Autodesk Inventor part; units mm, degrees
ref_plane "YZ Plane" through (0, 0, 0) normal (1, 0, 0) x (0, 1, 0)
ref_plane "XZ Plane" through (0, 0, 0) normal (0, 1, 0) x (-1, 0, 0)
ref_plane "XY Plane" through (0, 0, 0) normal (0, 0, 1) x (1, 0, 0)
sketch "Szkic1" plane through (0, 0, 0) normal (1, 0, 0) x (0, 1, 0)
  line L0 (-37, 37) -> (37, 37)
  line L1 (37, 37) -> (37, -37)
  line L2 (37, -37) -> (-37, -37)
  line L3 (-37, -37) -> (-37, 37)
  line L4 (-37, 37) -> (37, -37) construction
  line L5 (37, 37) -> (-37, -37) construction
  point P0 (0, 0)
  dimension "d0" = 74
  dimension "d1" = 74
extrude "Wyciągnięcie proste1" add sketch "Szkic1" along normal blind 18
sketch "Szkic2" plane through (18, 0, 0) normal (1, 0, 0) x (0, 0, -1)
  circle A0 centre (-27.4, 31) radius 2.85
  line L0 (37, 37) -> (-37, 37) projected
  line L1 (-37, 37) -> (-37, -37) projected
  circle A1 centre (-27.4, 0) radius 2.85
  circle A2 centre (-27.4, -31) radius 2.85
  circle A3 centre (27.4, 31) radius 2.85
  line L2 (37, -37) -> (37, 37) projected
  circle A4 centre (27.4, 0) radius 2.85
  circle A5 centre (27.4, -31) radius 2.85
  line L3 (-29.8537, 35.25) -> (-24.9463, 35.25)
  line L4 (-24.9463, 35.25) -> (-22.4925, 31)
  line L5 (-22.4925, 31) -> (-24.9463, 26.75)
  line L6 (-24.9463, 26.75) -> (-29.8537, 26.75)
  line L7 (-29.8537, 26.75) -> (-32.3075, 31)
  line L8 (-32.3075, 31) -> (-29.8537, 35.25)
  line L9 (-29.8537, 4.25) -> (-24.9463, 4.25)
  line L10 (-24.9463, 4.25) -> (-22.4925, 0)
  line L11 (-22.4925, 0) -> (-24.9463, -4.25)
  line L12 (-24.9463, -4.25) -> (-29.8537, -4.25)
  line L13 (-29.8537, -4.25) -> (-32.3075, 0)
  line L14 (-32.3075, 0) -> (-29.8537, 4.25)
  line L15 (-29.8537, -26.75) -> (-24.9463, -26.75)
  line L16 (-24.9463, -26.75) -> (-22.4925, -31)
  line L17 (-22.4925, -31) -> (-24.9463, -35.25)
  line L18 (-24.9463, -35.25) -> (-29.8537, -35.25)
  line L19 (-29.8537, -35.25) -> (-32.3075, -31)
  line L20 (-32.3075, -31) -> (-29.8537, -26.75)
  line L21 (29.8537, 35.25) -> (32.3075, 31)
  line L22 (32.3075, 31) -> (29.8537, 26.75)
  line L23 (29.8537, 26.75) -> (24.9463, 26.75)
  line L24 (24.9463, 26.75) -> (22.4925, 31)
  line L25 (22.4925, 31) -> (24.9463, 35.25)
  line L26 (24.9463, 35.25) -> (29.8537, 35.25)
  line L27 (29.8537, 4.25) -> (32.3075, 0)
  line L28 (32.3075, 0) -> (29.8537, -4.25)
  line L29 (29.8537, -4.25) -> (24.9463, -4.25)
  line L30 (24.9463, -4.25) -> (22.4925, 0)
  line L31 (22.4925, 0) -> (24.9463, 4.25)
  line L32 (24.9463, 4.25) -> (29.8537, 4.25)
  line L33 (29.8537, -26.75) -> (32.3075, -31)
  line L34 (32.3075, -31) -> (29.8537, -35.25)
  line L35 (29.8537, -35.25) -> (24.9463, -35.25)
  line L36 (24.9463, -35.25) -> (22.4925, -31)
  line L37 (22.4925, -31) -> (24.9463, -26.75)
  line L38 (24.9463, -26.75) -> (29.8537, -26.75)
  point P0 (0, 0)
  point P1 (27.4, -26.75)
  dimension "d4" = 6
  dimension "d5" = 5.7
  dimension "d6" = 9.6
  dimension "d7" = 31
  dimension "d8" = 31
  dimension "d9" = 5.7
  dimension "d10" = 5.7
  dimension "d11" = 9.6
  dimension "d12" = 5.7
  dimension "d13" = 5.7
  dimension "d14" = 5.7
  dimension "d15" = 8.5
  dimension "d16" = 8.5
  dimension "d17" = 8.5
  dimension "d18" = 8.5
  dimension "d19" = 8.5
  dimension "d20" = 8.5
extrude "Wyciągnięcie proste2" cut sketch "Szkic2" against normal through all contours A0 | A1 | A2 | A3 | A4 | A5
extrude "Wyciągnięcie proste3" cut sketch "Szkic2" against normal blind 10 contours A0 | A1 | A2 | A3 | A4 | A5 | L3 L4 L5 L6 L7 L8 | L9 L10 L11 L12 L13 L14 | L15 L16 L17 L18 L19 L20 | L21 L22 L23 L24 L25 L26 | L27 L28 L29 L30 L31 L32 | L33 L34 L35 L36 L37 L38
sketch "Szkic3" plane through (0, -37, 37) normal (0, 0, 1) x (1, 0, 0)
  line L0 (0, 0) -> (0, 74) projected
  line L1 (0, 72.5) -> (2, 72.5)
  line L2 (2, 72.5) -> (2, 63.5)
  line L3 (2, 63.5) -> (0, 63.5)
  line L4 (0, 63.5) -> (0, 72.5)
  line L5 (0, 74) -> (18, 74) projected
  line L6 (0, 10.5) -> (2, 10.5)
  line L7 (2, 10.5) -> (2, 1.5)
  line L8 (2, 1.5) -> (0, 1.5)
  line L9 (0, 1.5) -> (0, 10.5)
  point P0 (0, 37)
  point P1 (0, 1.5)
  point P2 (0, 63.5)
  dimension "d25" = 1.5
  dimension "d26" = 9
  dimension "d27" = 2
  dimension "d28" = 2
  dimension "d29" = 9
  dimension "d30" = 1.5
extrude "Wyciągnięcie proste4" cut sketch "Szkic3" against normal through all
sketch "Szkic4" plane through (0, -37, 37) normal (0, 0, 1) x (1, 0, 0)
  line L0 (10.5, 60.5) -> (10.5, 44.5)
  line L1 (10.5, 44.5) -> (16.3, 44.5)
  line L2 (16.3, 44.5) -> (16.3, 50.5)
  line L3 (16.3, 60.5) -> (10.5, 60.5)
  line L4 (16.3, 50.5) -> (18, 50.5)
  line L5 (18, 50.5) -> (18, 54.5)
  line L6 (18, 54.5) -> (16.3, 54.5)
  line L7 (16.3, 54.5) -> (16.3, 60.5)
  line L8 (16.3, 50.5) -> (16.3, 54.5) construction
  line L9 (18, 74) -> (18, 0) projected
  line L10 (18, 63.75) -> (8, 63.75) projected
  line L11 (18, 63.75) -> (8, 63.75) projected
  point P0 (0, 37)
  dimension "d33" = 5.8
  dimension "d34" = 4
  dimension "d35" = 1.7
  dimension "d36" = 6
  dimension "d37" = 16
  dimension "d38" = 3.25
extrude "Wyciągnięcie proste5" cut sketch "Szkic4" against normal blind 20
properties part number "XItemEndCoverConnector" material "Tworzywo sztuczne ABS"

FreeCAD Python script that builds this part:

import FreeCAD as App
import Part
import Sketcher
from FreeCAD import Vector
Q = App.Units.Quantity

doc = App.newDocument("Part")
body = doc.addObject("PartDesign::Body", "Body")

sketch1 = body.newObject("Sketcher::SketchObject", "Sketch")
sketch1.AttachmentSupport = (doc.getObject("YZ_Plane"), [""])
sketch1.MapMode = "FlatFace"
sketch1.addGeometry([
    Part.LineSegment(Vector(37, 37, 0), Vector(-37, 37, 0)),
    Part.LineSegment(Vector(-37, 37, 0), Vector(-37, -37, 0)),
    Part.LineSegment(Vector(-37, -37, 0), Vector(37, -37, 0)),
    Part.LineSegment(Vector(37, -37, 0), Vector(37, 37, 0)),
], False)
sketch1.addConstraint([
    Sketcher.Constraint("Coincident", 0, 2, 1, 1),
    Sketcher.Constraint("Coincident", 1, 2, 2, 1),
    Sketcher.Constraint("Coincident", 2, 2, 3, 1),
    Sketcher.Constraint("Coincident", 3, 2, 0, 1),
    Sketcher.Constraint("Horizontal", 0),
    Sketcher.Constraint("Vertical", 1),
    Sketcher.Constraint("Horizontal", 2),
    Sketcher.Constraint("Vertical", 3),
    Sketcher.Constraint("Symmetric", 0, 2, 2, 2, -1, 1),
    Sketcher.Constraint("Equal", 2, 1),
    Sketcher.Constraint("DistanceX", 0, 2, 0, 1, 74.0),
])
pad1 = body.newObject("PartDesign::Pad", "Pad")
pad1.Profile = sketch1
pad1.Length = 18

sketch2 = body.newObject("Sketcher::SketchObject", "Sketch001")
sketch2.AttachmentSupport = (doc.getObject("YZ_Plane"), [""])
sketch2.MapMode = "FlatFace"
sketch2.AttachmentOffset = App.Placement(Vector(0, 0, 18), App.Rotation())
sketch2.addGeometry([
    Part.Circle(Vector(31, 27.4, 0), Vector(0, 0, 1), 2.85),
    Part.Circle(Vector(0, 27.4, 0), Vector(0, 0, 1), 2.85),
    Part.Circle(Vector(-31, 27.4, 0), Vector(0, 0, 1), 2.85),
    Part.Circle(Vector(31, -27.4, 0), Vector(0, 0, 1), 2.85),
    Part.Circle(Vector(0, -27.4, 0), Vector(0, 0, 1), 2.85),
    Part.Circle(Vector(-31, -27.4, 0), Vector(0, 0, 1), 2.85),
], False)
sketch2.addConstraint([
    Sketcher.Constraint("Equal", 0, 1),
    Sketcher.Constraint("Equal", 1, 2),
    Sketcher.Constraint("Equal", 2, 3),
    Sketcher.Constraint("Equal", 3, 4),
    Sketcher.Constraint("Equal", 4, 5),
    Sketcher.Constraint("Symmetric", 2, 3, 3, 3, -1, 1),
    Sketcher.Constraint("Symmetric", 1, 3, 4, 3, -1, 1),
    Sketcher.Constraint("Symmetric", 0, 3, 5, 3, -1, 1),
    Sketcher.Constraint("Symmetric", 0, 3, 2, 3, -2),
    Sketcher.Constraint("PointOnObject", 1, 3, -2),
    Sketcher.Constraint("Horizontal", 0, 3, 1, 3),
    Sketcher.Constraint("Diameter", 0, 5.7),
    Sketcher.Constraint("DistanceX", -1, 1, 0, 3, 31.0),
    Sketcher.Constraint("DistanceY", -1, 1, 0, 3, 27.4),
])
pocket1 = body.newObject("PartDesign::Pocket", "Pocket")
pocket1.Profile = sketch2
pocket1.Type = "ThroughAll"

sketch3 = body.newObject("Sketcher::SketchObject", "Sketch002")
sketch3.AttachmentSupport = (doc.getObject("YZ_Plane"), [""])
sketch3.MapMode = "FlatFace"
sketch3.AttachmentOffset = App.Placement(Vector(0, 0, 18), App.Rotation())
sketch3.addGeometry([
    Part.LineSegment(Vector(35.25, 24.9463, 0), Vector(35.25, 29.8537, 0)),
    Part.LineSegment(Vector(35.25, 29.8537, 0), Vector(31, 32.3075, 0)),
    Part.LineSegment(Vector(31, 32.3075, 0), Vector(26.75, 29.8537, 0)),
    Part.LineSegment(Vector(26.75, 29.8537, 0), Vector(26.75, 24.9463, 0)),
    Part.LineSegment(Vector(26.75, 24.9463, 0), Vector(31, 22.4925, 0)),
    Part.LineSegment(Vector(31, 22.4925, 0), Vector(35.25, 24.9463, 0)),
    Part.LineSegment(Vector(4.25, 24.9463, 0), Vector(4.25, 29.8537, 0)),
    Part.LineSegment(Vector(4.25, 29.8537, 0), Vector(0, 32.3075, 0)),
    Part.LineSegment(Vector(0, 32.3075, 0), Vector(-4.25, 29.8537, 0)),
    Part.LineSegment(Vector(-4.25, 29.8537, 0), Vector(-4.25, 24.9463, 0)),
    Part.LineSegment(Vector(-4.25, 24.9463, 0), Vector(0, 22.4925, 0)),
    Part.LineSegment(Vector(0, 22.4925, 0), Vector(4.25, 24.9463, 0)),
    Part.LineSegment(Vector(-26.75, 24.9463, 0), Vector(-26.75, 29.8537, 0)),
    Part.LineSegment(Vector(-26.75, 29.8537, 0), Vector(-31, 32.3075, 0)),
    Part.LineSegment(Vector(-31, 32.3075, 0), Vector(-35.25, 29.8537, 0)),
    Part.LineSegment(Vector(-35.25, 29.8537, 0), Vector(-35.25, 24.9463, 0)),
    Part.LineSegment(Vector(-35.25, 24.9463, 0), Vector(-31, 22.4925, 0)),
    Part.LineSegment(Vector(-31, 22.4925, 0), Vector(-26.75, 24.9463, 0)),
    Part.LineSegment(Vector(31, -32.3075, 0), Vector(35.25, -29.8537, 0)),
    Part.LineSegment(Vector(35.25, -29.8537, 0), Vector(35.25, -24.9463, 0)),
    Part.LineSegment(Vector(35.25, -24.9463, 0), Vector(31, -22.4925, 0)),
    Part.LineSegment(Vector(31, -22.4925, 0), Vector(26.75, -24.9463, 0)),
    Part.LineSegment(Vector(26.75, -24.9463, 0), Vector(26.75, -29.8537, 0)),
    Part.LineSegment(Vector(26.75, -29.8537, 0), Vector(31, -32.3075, 0)),
    Part.LineSegment(Vector(0, -32.3075, 0), Vector(4.25, -29.8537, 0)),
    Part.LineSegment(Vector(4.25, -29.8537, 0), Vector(4.25, -24.9463, 0)),
    Part.LineSegment(Vector(4.25, -24.9463, 0), Vector(0, -22.4925, 0)),
    Part.LineSegment(Vector(0, -22.4925, 0), Vector(-4.25, -24.9463, 0)),
    Part.LineSegment(Vector(-4.25, -24.9463, 0), Vector(-4.25, -29.8537, 0)),
    Part.LineSegment(Vector(-4.25, -29.8537, 0), Vector(0, -32.3075, 0)),
    Part.LineSegment(Vector(-31, -32.3075, 0), Vector(-26.75, -29.8537, 0)),
    Part.LineSegment(Vector(-26.75, -29.8537, 0), Vector(-26.75, -24.9463, 0)),
    Part.LineSegment(Vector(-26.75, -24.9463, 0), Vector(-31, -22.4925, 0)),
    Part.LineSegment(Vector(-31, -22.4925, 0), Vector(-35.25, -24.9463, 0)),
    Part.LineSegment(Vector(-35.25, -24.9463, 0), Vector(-35.25, -29.8537, 0)),
    Part.LineSegment(Vector(-35.25, -29.8537, 0), Vector(-31, -32.3075, 0)),
], False)
sketch3.addConstraint([
    Sketcher.Constraint("Coincident", 0, 2, 1, 1),
    Sketcher.Constraint("Coincident", 1, 2, 2, 1),
    Sketcher.Constraint("Coincident", 2, 2, 3, 1),
    Sketcher.Constraint("Coincident", 3, 2, 4, 1),
    Sketcher.Constraint("Coincident", 4, 2, 5, 1),
    Sketcher.Constraint("Coincident", 5, 2, 0, 1),
    Sketcher.Constraint("Coincident", 6, 2, 7, 1),
    Sketcher.Constraint("Coincident", 7, 2, 8, 1),
    Sketcher.Constraint("Coincident", 8, 2, 9, 1),
    Sketcher.Constraint("Coincident", 9, 2, 10, 1),
    Sketcher.Constraint("Coincident", 10, 2, 11, 1),
    Sketcher.Constraint("Coincident", 11, 2, 6, 1),
    Sketcher.Constraint("Coincident", 12, 2, 13, 1),
    Sketcher.Constraint("Coincident", 13, 2, 14, 1),
    Sketcher.Constraint("Coincident", 14, 2, 15, 1),
    Sketcher.Constraint("Coincident", 15, 2, 16, 1),
    Sketcher.Constraint("Coincident", 16, 2, 17, 1),
    Sketcher.Constraint("Coincident", 17, 2, 12, 1),
    Sketcher.Constraint("Coincident", 18, 2, 19, 1),
    Sketcher.Constraint("Coincident", 19, 2, 20, 1),
    Sketcher.Constraint("Coincident", 20, 2, 21, 1),
    Sketcher.Constraint("Coincident", 21, 2, 22, 1),
    Sketcher.Constraint("Coincident", 22, 2, 23, 1),
    Sketcher.Constraint("Coincident", 23, 2, 18, 1),
    Sketcher.Constraint("Coincident", 24, 2, 25, 1),
    Sketcher.Constraint("Coincident", 25, 2, 26, 1),
    Sketcher.Constraint("Coincident", 26, 2, 27, 1),
    Sketcher.Constraint("Coincident", 27, 2, 28, 1),
    Sketcher.Constraint("Coincident", 28, 2, 29, 1),
    Sketcher.Constraint("Coincident", 29, 2, 24, 1),
    Sketcher.Constraint("Coincident", 30, 2, 31, 1),
    Sketcher.Constraint("Coincident", 31, 2, 32, 1),
    Sketcher.Constraint("Coincident", 32, 2, 33, 1),
    Sketcher.Constraint("Coincident", 33, 2, 34, 1),
    Sketcher.Constraint("Coincident", 34, 2, 35, 1),
    Sketcher.Constraint("Coincident", 35, 2, 30, 1),
    Sketcher.Constraint("Vertical", 0),
    Sketcher.Constraint("Vertical", 3),
    Sketcher.Constraint("Vertical", 6),
    Sketcher.Constraint("Vertical", 9),
    Sketcher.Constraint("Vertical", 12),
    Sketcher.Constraint("Vertical", 15),
    Sketcher.Constraint("Vertical", 19),
    Sketcher.Constraint("Vertical", 22),
    Sketcher.Constraint("Vertical", 25),
    Sketcher.Constraint("Vertical", 28),
    Sketcher.Constraint("Vertical", 31),
    Sketcher.Constraint("Vertical", 34),
    Sketcher.Constraint("Symmetric", 14, 2, 18, 2, -1, 1),
    Sketcher.Constraint("Symmetric", 16, 2, 20, 2, -1, 1),
    Sketcher.Constraint("Symmetric", 17, 2, 21, 2, -1, 1),
    Sketcher.Constraint("Symmetric", 13, 2, 23, 2, -1, 1),
    Sketcher.Constraint("Symmetric", 8, 2, 24, 2, -1, 1),
    Sketcher.Constraint("Symmetric", 10, 2, 26, 2, -1, 1),
    Sketcher.Constraint("Symmetric", 11, 2, 27, 2, -1, 1),
    Sketcher.Constraint("Symmetric", 7, 2, 29, 2, -1, 1),
    Sketcher.Constraint("Symmetric", 2, 2, 30, 2, -1, 1),
    Sketcher.Constraint("Symmetric", 4, 2, 32, 2, -1, 1),
    Sketcher.Constraint("Symmetric", 5, 2, 33, 2, -1, 1),
    Sketcher.Constraint("Symmetric", 1, 2, 35, 2, -1, 1),
    Sketcher.Constraint("Symmetric", 6, 2, 8, 2, -2),
    Sketcher.Constraint("Symmetric", 2, 2, 12, 2, -2),
    Sketcher.Constraint("Symmetric", 1, 2, 13, 2, -2),
    Sketcher.Constraint("Symmetric", 0, 2, 14, 2, -2),
    Sketcher.Constraint("Symmetric", 4, 2, 16, 2, -2),
    Sketcher.Constraint("PointOnObject", 7, 2, -2),
    Sketcher.Constraint("PointOnObject", 10, 2, -2),
    Sketcher.Constraint("Parallel", 1, 4),
    Sketcher.Constraint("Parallel", 2, 5),
    Sketcher.Constraint("Parallel", 4, 7),
    Sketcher.Constraint("Parallel", 5, 8),
    Sketcher.Constraint("Parallel", 7, 10),
    Sketcher.Constraint("Parallel", 8, 11),
    Sketcher.Constraint("Parallel", 13, 16),
    Sketcher.Constraint("Parallel", 14, 17),
    Sketcher.Constraint("Parallel", 16, 20),
    Sketcher.Constraint("Parallel", 20, 23),
    Sketcher.Constraint("Parallel", 23, 26),
    Sketcher.Constraint("Parallel", 26, 29),
    Sketcher.Constraint("Parallel", 29, 32),
    Sketcher.Constraint("Parallel", 32, 35),
    Sketcher.Constraint("Horizontal", 0, 2, 2, 2),
    Sketcher.Constraint("Horizontal", 3, 2, 5, 2),
    Sketcher.Constraint("Horizontal", 2, 2, 6, 2),
    Sketcher.Constraint("Horizontal", 1, 2, 7, 2),
    Sketcher.Constraint("Horizontal", 5, 2, 9, 2),
    Sketcher.Constraint("DistanceX", -1, 1, 1, 2, 31.0),
    Sketcher.Constraint("DistanceX", 2, 2, 0, 2, 8.5),
    Sketcher.Constraint("Angle", 1, Q("149.9994 deg")),
    Sketcher.Constraint("DistanceY", 18, 2, 5, 2, 54.8),
    Sketcher.Constraint("DistanceY", 0, 1, 0, 2, 4.9074),
])
pocket2 = body.newObject("PartDesign::Pocket", "Pocket001")
pocket2.Profile = sketch3
pocket2.Length = 10

sketch4 = body.newObject("Sketcher::SketchObject", "Sketch003")
sketch4.AttachmentSupport = (doc.getObject("XY_Plane"), [""])
sketch4.MapMode = "FlatFace"
sketch4.AttachmentOffset = App.Placement(Vector(0, 0, 37), App.Rotation())
sketch4.addGeometry([
    Part.LineSegment(Vector(0, 35.5, 0), Vector(0, 26.5, 0)),
    Part.LineSegment(Vector(0, 26.5, 0), Vector(2, 26.5, 0)),
    Part.LineSegment(Vector(2, 26.5, 0), Vector(2, 35.5, 0)),
    Part.LineSegment(Vector(2, 35.5, 0), Vector(0, 35.5, 0)),
    Part.LineSegment(Vector(0, -26.5, 0), Vector(0, -35.5, 0)),
    Part.LineSegment(Vector(0, -35.5, 0), Vector(2, -35.5, 0)),
    Part.LineSegment(Vector(2, -35.5, 0), Vector(2, -26.5, 0)),
    Part.LineSegment(Vector(2, -26.5, 0), Vector(0, -26.5, 0)),
], False)
sketch4.addConstraint([
    Sketcher.Constraint("Coincident", 0, 2, 1, 1),
    Sketcher.Constraint("Coincident", 1, 2, 2, 1),
    Sketcher.Constraint("Coincident", 2, 2, 3, 1),
    Sketcher.Constraint("Coincident", 3, 2, 0, 1),
    Sketcher.Constraint("Coincident", 4, 2, 5, 1),
    Sketcher.Constraint("Coincident", 5, 2, 6, 1),
    Sketcher.Constraint("Coincident", 6, 2, 7, 1),
    Sketcher.Constraint("Coincident", 7, 2, 4, 1),
    Sketcher.Constraint("Vertical", 0),
    Sketcher.Constraint("Horizontal", 1),
    Sketcher.Constraint("Vertical", 2),
    Sketcher.Constraint("Horizontal", 3),
    Sketcher.Constraint("Vertical", 4),
    Sketcher.Constraint("Horizontal", 5),
    Sketcher.Constraint("Vertical", 6),
    Sketcher.Constraint("Horizontal", 7),
    Sketcher.Constraint("Symmetric", 3, 2, 4, 2, -1, 1),
    Sketcher.Constraint("Symmetric", 1, 2, 6, 2, -1),
    Sketcher.Constraint("PointOnObject", 0, 2, -2),
    Sketcher.Constraint("DistanceX", 1, 1, 1, 2, 2.0),
    Sketcher.Constraint("DistanceY", 0, 2, 0, 1, 9.0),
    Sketcher.Constraint("DistanceY", 4, 2, 0, 2, 62.0),
])
pocket3 = body.newObject("PartDesign::Pocket", "Pocket002")
pocket3.Profile = sketch4
pocket3.Type = "ThroughAll"

sketch5 = body.newObject("Sketcher::SketchObject", "Sketch004")
sketch5.AttachmentSupport = (doc.getObject("XY_Plane"), [""])
sketch5.MapMode = "FlatFace"
sketch5.AttachmentOffset = App.Placement(Vector(0, 0, 37), App.Rotation())
sketch5.addGeometry([
    Part.LineSegment(Vector(16.3, 23.5, 0), Vector(10.5, 23.5, 0)),
    Part.LineSegment(Vector(10.5, 23.5, 0), Vector(10.5, 7.5, 0)),
    Part.LineSegment(Vector(10.5, 7.5, 0), Vector(16.3, 7.5, 0)),
    Part.LineSegment(Vector(16.3, 7.5, 0), Vector(16.3, 13.5, 0)),
    Part.LineSegment(Vector(16.3, 13.5, 0), Vector(18, 13.5, 0)),
    Part.LineSegment(Vector(18, 13.5, 0), Vector(18, 17.5, 0)),
    Part.LineSegment(Vector(18, 17.5, 0), Vector(16.3, 17.5, 0)),
    Part.LineSegment(Vector(16.3, 17.5, 0), Vector(16.3, 23.5, 0)),
], False)
sketch5.addConstraint([
    Sketcher.Constraint("Coincident", 0, 2, 1, 1),
    Sketcher.Constraint("Coincident", 1, 2, 2, 1),
    Sketcher.Constraint("Coincident", 2, 2, 3, 1),
    Sketcher.Constraint("Coincident", 3, 2, 4, 1),
    Sketcher.Constraint("Coincident", 4, 2, 5, 1),
    Sketcher.Constraint("Coincident", 5, 2, 6, 1),
    Sketcher.Constraint("Coincident", 6, 2, 7, 1),
    Sketcher.Constraint("Coincident", 7, 2, 0, 1),
    Sketcher.Constraint("Horizontal", 0),
    Sketcher.Constraint("Vertical", 1),
    Sketcher.Constraint("Horizontal", 2),
    Sketcher.Constraint("Vertical", 3),
    Sketcher.Constraint("Horizontal", 4),
    Sketcher.Constraint("Vertical", 5),
    Sketcher.Constraint("Horizontal", 6),
    Sketcher.Constraint("Vertical", 7),
    Sketcher.Constraint("Vertical", 3, 2, 6, 2),
    Sketcher.Constraint("Equal", 3, 7),
    Sketcher.Constraint("DistanceY", 1, 2, 1, 1, 16.0),
    Sketcher.Constraint("DistanceY", 3, 1, 3, 2, 6.0),
    Sketcher.Constraint("DistanceX", 0, 2, 0, 1, 5.8),
    Sketcher.Constraint("DistanceX", 4, 1, 4, 2, 1.7),
    Sketcher.Constraint("DistanceX", -1, 1, 4, 2, 18.0),
    Sketcher.Constraint("DistanceY", -1, 1, 0, 2, 23.5),
])
pocket4 = body.newObject("PartDesign::Pocket", "Pocket003")
pocket4.Profile = sketch5
pocket4.Length = 20

doc.recompute()
